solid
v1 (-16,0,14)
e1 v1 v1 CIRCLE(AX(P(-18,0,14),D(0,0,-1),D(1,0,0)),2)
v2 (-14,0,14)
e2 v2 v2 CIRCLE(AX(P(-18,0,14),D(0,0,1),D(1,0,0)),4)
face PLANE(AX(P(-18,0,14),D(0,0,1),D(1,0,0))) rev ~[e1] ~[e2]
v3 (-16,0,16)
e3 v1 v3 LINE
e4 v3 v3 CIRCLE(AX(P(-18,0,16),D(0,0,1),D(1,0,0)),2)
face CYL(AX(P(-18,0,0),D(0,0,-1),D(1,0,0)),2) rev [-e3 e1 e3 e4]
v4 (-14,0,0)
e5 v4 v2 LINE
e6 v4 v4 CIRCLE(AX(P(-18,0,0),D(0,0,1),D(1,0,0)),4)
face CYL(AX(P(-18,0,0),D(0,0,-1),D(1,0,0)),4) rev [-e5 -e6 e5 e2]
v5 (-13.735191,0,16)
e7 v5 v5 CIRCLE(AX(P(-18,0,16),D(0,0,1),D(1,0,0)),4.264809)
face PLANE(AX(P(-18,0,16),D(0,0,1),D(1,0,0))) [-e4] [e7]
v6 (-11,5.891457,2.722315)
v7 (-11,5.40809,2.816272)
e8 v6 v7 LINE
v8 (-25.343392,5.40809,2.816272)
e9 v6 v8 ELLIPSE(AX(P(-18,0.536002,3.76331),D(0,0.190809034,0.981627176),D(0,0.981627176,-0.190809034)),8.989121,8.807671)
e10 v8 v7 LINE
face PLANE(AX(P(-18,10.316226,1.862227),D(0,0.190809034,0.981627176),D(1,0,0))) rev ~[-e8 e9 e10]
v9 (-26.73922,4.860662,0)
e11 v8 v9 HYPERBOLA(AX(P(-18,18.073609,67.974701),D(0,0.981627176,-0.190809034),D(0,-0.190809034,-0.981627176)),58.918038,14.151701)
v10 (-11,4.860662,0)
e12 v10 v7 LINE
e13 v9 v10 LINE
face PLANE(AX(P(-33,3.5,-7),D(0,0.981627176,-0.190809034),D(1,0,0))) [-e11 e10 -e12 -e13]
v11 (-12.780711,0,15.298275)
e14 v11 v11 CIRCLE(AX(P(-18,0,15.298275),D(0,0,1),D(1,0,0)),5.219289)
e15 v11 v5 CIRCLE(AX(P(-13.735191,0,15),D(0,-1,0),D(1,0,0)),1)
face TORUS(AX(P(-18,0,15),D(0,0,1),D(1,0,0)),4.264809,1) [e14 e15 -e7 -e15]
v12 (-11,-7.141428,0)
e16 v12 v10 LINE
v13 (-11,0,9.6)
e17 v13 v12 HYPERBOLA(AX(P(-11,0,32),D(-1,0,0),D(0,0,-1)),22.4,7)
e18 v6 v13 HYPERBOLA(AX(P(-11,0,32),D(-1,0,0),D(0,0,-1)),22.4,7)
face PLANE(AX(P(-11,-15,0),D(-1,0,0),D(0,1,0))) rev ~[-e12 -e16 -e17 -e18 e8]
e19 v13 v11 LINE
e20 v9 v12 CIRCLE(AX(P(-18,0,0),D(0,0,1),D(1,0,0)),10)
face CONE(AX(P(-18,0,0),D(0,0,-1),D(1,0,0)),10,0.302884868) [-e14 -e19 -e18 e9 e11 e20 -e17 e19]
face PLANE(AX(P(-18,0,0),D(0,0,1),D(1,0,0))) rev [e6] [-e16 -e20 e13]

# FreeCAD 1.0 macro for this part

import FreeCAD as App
import Part
import Sketcher
from FreeCAD import Vector


def edges_at(feature, points):
    """Names of the edges that pass closest to the given points."""
    edges = feature.Shape.Edges
    near = lambda p: min(range(len(edges)), key=lambda i: edges[i].distToShape(Part.Vertex(*p))[0])
    return sorted({f"Edge{near(p) + 1}" for p in points})


def add_polygon(sketch, points):
    """Adds a closed chain of lines whose ends are joined by coincident constraints."""
    first, n = sketch.GeometryCount, len(points)
    for a, b in zip(points, points[1:] + points[:1]):
        sketch.addGeometry(Part.LineSegment(App.Vector(*a, 0), App.Vector(*b, 0)), False)
    for i in range(n):
        sketch.addConstraint(Sketcher.Constraint("Coincident", first + i, 2, first + (i + 1) % n, 1))

doc = App.newDocument("Part")
body = doc.addObject("PartDesign::Body", "Body")

# Sketch on XZ plane
sketch1 = body.newObject("Sketcher::SketchObject", "Sketch")
sketch1.AttachmentSupport = (doc.getObject("XZ_Plane"), [""])
sketch1.MapMode = "FlatFace"
add_polygon(sketch1, [(0, 0), (10, 0), (5, 16), (0, 16)])  # lines 0-3
sketch1.addConstraint(Sketcher.Constraint("Horizontal", 0))
sketch1.addConstraint(Sketcher.Constraint("Horizontal", 2))
sketch1.addConstraint(Sketcher.Constraint("Vertical", 3))
sketch1.addConstraint(Sketcher.Constraint("Coincident", 3, 2, -1, 1))
sketch1.addConstraint(Sketcher.Constraint("DistanceX", 0, 1, 0, 2, 10.0))
sketch1.addConstraint(Sketcher.Constraint("DistanceX", 2, 2, 2, 1, 5.0))
sketch1.addConstraint(Sketcher.Constraint("DistanceY", 3, 2, 3, 1, 16.0))
revolution = body.newObject("PartDesign::Revolution", "Revolution")
revolution.Profile = sketch1
revolution.ReferenceAxis = (sketch1, ["V_Axis"])
revolution.Angle = 360

# Sketch on XY plane
sketch2 = body.newObject("Sketcher::SketchObject", "Sketch001")
sketch2.AttachmentSupport = (doc.getObject("XY_Plane"), [""])
sketch2.MapMode = "FlatFace"
sketch2.addGeometry(Part.Circle(Vector(0, 0, 0), Vector(0, 0, 1), 2), False)
sketch2.addConstraint(Sketcher.Constraint("Coincident", 0, 3, -1, 1))
sketch2.addConstraint(Sketcher.Constraint("Diameter", 0, 4.0))
pocket1 = body.newObject("PartDesign::Pocket", "Pocket")
pocket1.Profile = sketch2
pocket1.Length = 16
pocket1.Reversed = True

# Sketch on XY plane
sketch3 = body.newObject("Sketcher::SketchObject", "Sketch002")
sketch3.AttachmentSupport = (doc.getObject("XY_Plane"), [""])
sketch3.MapMode = "FlatFace"
sketch3.addGeometry(Part.Circle(Vector(0, 0, 0), Vector(0, 0, 1), 4), False)
sketch3.addConstraint(Sketcher.Constraint("Coincident", 0, 3, -1, 1))
sketch3.addConstraint(Sketcher.Constraint("Diameter", 0, 8.0))
pocket2 = body.newObject("PartDesign::Pocket", "Pocket001")
pocket2.Profile = sketch3
pocket2.Length = 14
pocket2.Reversed = True

# Sketch on an angled plane
sketch4 = body.newObject("Sketcher::SketchObject", "Sketch003")
sketch4.Placement = App.Placement(Vector(-15, 3.5, -7), App.Rotation(Vector(1, 0, 0), Vector(0, 0.981627176, -0.190809034), Vector(0, 0.190809034, 0.981627176), "ZXY"))
add_polygon(sketch4, [(0, 10), (0, 0), (30, 0), (30, 10)])  # lines 0-3
sketch4.addConstraint(Sketcher.Constraint("Vertical", 0))
sketch4.addConstraint(Sketcher.Constraint("Horizontal", 1))
sketch4.addConstraint(Sketcher.Constraint("Vertical", 2))
sketch4.addConstraint(Sketcher.Constraint("Horizontal", 3))
sketch4.addConstraint(Sketcher.Constraint("Coincident", 0, 2, -1, 1))
sketch4.addConstraint(Sketcher.Constraint("DistanceX", 1, 1, 1, 2, 30.0))
sketch4.addConstraint(Sketcher.Constraint("DistanceY", 0, 2, 0, 1, 10.0))
pocket3 = body.newObject("PartDesign::Pocket", "Pocket002")
pocket3.Profile = sketch4
pocket3.Length = 10
pocket3.Reversed = True
doc.recompute()

fillet = body.newObject("PartDesign::Fillet", "Fillet")
fillet.Base = (pocket3, edges_at(pocket3, [(-5, 0, 16)]))
fillet.Radius = 1

# Sketch on XY plane
sketch5 = body.newObject("Sketcher::SketchObject", "Sketch004")
sketch5.AttachmentSupport = (doc.getObject("XY_Plane"), [""])
sketch5.MapMode = "FlatFace"
add_polygon(sketch5, [(7, 15), (7, -15), (17, -15), (17, 15)])  # lines 0-3
sketch5.addConstraint(Sketcher.Constraint("Vertical", 0))
sketch5.addConstraint(Sketcher.Constraint("Horizontal", 1))
sketch5.addConstraint(Sketcher.Constraint("Vertical", 2))
sketch5.addConstraint(Sketcher.Constraint("Horizontal", 3))
sketch5.addConstraint(Sketcher.Constraint("DistanceX", 1, 1, 1, 2, 10.0))
sketch5.addConstraint(Sketcher.Constraint("DistanceY", 0, 2, 0, 1, 30.0))
sketch5.addConstraint(Sketcher.Constraint("DistanceX", -1, 1, 0, 2, 7.0))
sketch5.addConstraint(Sketcher.Constraint("DistanceY", 0, 2, -1, 1, 15.0))
pocket4 = body.newObject("PartDesign::Pocket", "Pocket003")
pocket4.Profile = sketch5
pocket4.Length = 20
pocket4.Reversed = True
body2 = doc.addObject("PartDesign::Body", "Body001")
doc.recompute()

body.Placement = App.Placement(Vector(-18, 0, 0), App.Rotation(Vector(0, 0, 1), 0))
boolean = body2.newObject("PartDesign::Boolean", "Boolean")
boolean.Type = "Fuse"
boolean.addObjects([body])

doc.recompute()
